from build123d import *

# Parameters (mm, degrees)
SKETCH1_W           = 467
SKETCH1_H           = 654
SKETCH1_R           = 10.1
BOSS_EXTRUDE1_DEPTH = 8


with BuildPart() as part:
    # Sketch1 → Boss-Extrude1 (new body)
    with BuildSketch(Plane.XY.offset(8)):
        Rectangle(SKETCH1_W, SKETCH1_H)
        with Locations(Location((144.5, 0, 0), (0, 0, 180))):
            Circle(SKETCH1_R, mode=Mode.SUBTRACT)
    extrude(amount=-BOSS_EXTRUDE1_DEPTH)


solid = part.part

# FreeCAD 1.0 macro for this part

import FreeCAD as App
import Part
import Sketcher
Q = App.Units.Quantity


def add_polygon(sketch, points):
    """Adds a closed chain of lines whose ends are joined by coincident constraints."""
    first, n = sketch.GeometryCount, len(points)
    for a, b in zip(points, points[1:] + points[:1]):
        sketch.addGeometry(Part.LineSegment(App.Vector(*a, 0), App.Vector(*b, 0)), False)
    for i in range(n):
        sketch.addConstraint(Sketcher.Constraint("Coincident", first + i, 2, first + (i + 1) % n, 1))

doc = App.newDocument("Part")
body = doc.addObject("PartDesign::Body", "Body")

sketch1 = body.newObject("Sketcher::SketchObject", "Sketch")
sketch1.AttachmentSupport = (doc.getObject("XY_Plane"), [""])
sketch1.MapMode = "FlatFace"
sketch1.AttachmentOffset = App.Placement(App.Vector(0, 0, 8), App.Rotation())
add_polygon(sketch1, [(-233.5, 327), (-233.5, -327), (233.5, -327), (233.5, 327)])
sketch1.addGeometry(Part.Circle(App.Vector(144.5, 0, 0), App.Vector(0, 0, 1), 10.1), False)
sketch1.addConstraint(Sketcher.Constraint("Vertical", 0))
sketch1.addConstraint(Sketcher.Constraint("Horizontal", 1))
sketch1.addConstraint(Sketcher.Constraint("Vertical", 2))
sketch1.addConstraint(Sketcher.Constraint("Horizontal", 3))
sketch1.addConstraint(Sketcher.Constraint("Symmetric", 0, 2, 2, 2, -1, 1))
sketch1.addConstraint(Sketcher.Constraint("PointOnObject", 4, 3, -1))
sketch1.addConstraint(Sketcher.Constraint("Diameter", 4, Q("20.2 mm")))
sketch1.addConstraint(Sketcher.Constraint("DistanceX", 1, 1, 1, 2, Q("467 mm")))
sketch1.addConstraint(Sketcher.Constraint("DistanceY", 0, 2, 0, 1, Q("654 mm")))
sketch1.addConstraint(Sketcher.Constraint("DistanceX", 0, 2, 4, 3, Q("378 mm")))
pad1 = body.newObject("PartDesign::Pad", "Pad")
pad1.Profile = sketch1
pad1.Length = 8
pad1.Reversed = True

doc.recompute()
